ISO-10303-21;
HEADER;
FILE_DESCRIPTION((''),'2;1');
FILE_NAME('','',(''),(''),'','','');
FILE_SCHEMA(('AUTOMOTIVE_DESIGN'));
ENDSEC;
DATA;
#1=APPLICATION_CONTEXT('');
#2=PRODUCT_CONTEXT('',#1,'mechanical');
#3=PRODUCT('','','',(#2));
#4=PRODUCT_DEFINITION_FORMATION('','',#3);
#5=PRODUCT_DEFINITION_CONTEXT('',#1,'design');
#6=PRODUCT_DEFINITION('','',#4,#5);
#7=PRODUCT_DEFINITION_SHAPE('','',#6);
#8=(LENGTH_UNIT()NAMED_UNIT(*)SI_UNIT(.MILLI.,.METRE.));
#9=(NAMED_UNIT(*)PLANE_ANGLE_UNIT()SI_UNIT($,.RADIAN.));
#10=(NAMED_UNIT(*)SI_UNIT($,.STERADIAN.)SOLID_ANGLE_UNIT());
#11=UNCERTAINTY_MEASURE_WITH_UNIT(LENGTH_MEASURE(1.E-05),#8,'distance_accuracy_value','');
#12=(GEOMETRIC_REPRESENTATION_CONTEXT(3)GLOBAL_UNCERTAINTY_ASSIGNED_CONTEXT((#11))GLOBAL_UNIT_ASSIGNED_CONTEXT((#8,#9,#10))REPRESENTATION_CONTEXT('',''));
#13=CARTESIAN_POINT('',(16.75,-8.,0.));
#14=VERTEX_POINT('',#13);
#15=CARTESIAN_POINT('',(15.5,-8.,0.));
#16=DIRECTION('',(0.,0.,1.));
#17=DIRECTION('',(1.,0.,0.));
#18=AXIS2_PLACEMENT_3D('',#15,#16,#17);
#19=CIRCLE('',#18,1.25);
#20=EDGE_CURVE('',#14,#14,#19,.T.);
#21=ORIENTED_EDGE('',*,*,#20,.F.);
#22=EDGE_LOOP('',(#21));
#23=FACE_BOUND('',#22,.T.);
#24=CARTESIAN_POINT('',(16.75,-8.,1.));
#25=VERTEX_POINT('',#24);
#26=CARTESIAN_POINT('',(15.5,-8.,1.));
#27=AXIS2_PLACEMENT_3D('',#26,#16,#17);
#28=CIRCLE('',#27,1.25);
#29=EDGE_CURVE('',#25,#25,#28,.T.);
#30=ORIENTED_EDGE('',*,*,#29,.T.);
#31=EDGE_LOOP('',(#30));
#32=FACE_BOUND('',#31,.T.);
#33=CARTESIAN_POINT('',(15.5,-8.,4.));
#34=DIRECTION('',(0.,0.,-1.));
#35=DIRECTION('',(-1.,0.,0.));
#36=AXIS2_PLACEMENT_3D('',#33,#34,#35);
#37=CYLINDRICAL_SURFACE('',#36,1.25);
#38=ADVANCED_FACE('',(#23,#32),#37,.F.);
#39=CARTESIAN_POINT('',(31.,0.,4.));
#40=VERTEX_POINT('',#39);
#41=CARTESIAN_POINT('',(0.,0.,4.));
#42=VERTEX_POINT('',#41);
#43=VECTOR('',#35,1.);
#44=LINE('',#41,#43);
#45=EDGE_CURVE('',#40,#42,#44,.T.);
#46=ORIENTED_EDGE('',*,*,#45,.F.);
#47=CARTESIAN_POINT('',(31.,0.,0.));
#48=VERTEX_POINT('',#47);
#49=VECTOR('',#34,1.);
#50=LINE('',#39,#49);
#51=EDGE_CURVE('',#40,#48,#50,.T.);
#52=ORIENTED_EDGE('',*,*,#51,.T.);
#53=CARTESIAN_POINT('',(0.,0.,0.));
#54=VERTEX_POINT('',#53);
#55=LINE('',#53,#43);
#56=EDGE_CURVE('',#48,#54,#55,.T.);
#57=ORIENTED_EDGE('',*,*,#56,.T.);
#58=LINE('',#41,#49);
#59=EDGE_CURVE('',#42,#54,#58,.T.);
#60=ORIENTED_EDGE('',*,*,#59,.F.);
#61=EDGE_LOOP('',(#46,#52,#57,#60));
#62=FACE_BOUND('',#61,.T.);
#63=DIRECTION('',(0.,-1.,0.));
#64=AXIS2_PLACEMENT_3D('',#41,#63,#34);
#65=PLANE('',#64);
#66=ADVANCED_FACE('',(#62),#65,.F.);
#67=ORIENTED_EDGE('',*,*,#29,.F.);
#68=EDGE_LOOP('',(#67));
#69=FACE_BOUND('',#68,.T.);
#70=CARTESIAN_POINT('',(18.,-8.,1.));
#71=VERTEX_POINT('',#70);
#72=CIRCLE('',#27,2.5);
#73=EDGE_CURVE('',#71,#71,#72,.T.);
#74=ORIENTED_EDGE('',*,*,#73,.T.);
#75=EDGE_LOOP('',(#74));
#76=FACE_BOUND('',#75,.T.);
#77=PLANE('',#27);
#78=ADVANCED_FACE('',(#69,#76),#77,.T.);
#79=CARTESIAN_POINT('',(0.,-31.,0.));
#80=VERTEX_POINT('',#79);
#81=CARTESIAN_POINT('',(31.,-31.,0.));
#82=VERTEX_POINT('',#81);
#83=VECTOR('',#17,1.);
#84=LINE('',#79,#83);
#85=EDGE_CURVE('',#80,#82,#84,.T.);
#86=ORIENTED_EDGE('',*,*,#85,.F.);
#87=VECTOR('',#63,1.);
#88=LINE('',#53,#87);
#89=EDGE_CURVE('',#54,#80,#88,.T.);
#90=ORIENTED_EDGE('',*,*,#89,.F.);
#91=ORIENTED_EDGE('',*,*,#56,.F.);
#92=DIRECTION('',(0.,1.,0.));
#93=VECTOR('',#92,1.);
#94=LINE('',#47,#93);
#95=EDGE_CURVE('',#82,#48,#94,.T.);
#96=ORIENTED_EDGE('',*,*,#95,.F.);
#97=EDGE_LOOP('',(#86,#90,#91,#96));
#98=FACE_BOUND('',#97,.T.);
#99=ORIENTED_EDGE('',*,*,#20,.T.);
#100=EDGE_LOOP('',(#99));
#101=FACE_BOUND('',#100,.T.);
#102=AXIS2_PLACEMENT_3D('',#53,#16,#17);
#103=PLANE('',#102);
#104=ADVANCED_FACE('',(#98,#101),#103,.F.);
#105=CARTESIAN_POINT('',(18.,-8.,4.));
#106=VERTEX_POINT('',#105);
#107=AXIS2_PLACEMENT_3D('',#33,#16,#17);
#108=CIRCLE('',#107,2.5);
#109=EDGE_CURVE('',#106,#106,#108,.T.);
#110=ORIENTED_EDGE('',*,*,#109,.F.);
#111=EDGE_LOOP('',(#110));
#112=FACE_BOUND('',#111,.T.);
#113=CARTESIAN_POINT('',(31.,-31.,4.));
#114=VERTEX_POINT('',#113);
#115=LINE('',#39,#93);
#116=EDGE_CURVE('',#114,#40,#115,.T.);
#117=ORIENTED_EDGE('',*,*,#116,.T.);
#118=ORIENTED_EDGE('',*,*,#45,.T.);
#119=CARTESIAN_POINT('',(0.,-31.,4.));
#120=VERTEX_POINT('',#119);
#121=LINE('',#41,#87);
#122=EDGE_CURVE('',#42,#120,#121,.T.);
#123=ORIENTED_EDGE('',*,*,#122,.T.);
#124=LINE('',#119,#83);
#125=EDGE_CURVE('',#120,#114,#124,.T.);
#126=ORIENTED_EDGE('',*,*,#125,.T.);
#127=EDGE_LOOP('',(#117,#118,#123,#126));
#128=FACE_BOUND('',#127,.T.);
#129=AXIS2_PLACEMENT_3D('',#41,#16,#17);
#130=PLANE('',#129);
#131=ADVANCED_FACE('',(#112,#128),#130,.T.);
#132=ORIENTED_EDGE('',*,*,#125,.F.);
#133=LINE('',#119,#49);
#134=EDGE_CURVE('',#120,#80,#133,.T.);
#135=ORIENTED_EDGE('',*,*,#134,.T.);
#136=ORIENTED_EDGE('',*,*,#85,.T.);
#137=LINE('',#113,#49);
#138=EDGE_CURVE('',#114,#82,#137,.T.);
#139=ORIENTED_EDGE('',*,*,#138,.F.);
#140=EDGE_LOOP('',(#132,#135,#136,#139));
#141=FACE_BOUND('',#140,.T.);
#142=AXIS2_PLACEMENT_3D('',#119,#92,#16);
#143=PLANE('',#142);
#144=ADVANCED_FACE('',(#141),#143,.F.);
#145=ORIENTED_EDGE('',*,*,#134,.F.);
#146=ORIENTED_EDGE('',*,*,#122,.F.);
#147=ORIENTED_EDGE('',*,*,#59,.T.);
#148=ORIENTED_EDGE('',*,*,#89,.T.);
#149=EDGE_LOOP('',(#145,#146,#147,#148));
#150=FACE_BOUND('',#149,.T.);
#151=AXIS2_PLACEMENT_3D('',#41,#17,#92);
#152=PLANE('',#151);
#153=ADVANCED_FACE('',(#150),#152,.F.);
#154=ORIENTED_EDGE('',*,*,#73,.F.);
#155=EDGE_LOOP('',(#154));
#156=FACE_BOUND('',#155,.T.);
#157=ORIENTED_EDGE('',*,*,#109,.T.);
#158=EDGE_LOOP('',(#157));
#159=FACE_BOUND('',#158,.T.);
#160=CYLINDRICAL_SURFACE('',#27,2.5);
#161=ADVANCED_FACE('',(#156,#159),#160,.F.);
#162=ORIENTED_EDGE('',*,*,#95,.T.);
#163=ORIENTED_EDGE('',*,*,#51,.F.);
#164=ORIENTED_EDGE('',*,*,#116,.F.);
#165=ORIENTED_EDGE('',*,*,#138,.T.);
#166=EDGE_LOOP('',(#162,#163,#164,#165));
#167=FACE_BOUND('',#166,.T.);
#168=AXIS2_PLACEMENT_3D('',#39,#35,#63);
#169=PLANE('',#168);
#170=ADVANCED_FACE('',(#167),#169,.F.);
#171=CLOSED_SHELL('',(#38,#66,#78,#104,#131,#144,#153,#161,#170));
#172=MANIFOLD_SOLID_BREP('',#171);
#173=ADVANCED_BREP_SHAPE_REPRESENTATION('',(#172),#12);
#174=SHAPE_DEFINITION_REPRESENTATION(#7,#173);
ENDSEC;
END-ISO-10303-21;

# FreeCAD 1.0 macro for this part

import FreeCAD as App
import Part
import Sketcher

V = App.Vector


def add_polygon(sketch, points):
    """Adds a closed chain of lines whose ends are joined by coincident constraints."""
    first, n = sketch.GeometryCount, len(points)
    for a, b in zip(points, points[1:] + points[:1]):
        sketch.addGeometry(Part.LineSegment(App.Vector(*a, 0), App.Vector(*b, 0)), False)
    for i in range(n):
        sketch.addConstraint(Sketcher.Constraint("Coincident", first + i, 2, first + (i + 1) % n, 1))

doc = App.newDocument("Part")
body = doc.addObject("PartDesign::Body", "Body")

# Sketch on XY plane
sketch1 = body.newObject("Sketcher::SketchObject", "Sketch")
sketch1.AttachmentSupport = (doc.getObject("XY_Plane"), [""])
sketch1.MapMode = "FlatFace"
add_polygon(sketch1, [(0, 0), (0, -31), (31, -31), (31, 0)])  # lines 0-3
sketch1.addGeometry(Part.Circle(V(15.5, -8, 0), V(0, 0, 1), 1.2), False)  # 4
sketch1.addConstraint([
    Sketcher.Constraint("Vertical", 0),
    Sketcher.Constraint("Horizontal", 1),
    Sketcher.Constraint("Vertical", 2),
    Sketcher.Constraint("Horizontal", 3),
    Sketcher.Constraint("Coincident", 3, 2, -1, 1),
    Sketcher.Constraint("Equal", 3, 0),
    Sketcher.Constraint("Diameter", 4, 2.5),
    Sketcher.Constraint("DistanceX", 1, 1, 1, 2, 31.0),
    Sketcher.Constraint("DistanceY", 4, 3, -1, 1, 8.0),
    Sketcher.Constraint("DistanceX", -1, 1, 4, 3, 15.5),
])
pad1 = body.newObject("PartDesign::Pad", "Pad")
pad1.Profile = sketch1
pad1.Length = 4

# Sketch on XY plane
sketch2 = body.newObject("Sketcher::SketchObject", "Sketch001")
sketch2.AttachmentSupport = (doc.getObject("XY_Plane"), [""])
sketch2.MapMode = "FlatFace"
sketch2.AttachmentOffset = App.Placement(V(0, 0, 4), App.Rotation())
sketch2.addGeometry(Part.Circle(V(15.5, -8, 0), V(0, 0, 1), 2.5), False)
sketch2.addConstraint([
    Sketcher.Constraint("Diameter", 0, 5.0),
    Sketcher.Constraint("DistanceY", 0, 3, -1, 1, 8.0),
    Sketcher.Constraint("DistanceX", -1, 1, 0, 3, 15.5),
])
pocket1 = body.newObject("PartDesign::Pocket", "Pocket")
pocket1.Profile = sketch2
pocket1.Length = 3

doc.recompute()
